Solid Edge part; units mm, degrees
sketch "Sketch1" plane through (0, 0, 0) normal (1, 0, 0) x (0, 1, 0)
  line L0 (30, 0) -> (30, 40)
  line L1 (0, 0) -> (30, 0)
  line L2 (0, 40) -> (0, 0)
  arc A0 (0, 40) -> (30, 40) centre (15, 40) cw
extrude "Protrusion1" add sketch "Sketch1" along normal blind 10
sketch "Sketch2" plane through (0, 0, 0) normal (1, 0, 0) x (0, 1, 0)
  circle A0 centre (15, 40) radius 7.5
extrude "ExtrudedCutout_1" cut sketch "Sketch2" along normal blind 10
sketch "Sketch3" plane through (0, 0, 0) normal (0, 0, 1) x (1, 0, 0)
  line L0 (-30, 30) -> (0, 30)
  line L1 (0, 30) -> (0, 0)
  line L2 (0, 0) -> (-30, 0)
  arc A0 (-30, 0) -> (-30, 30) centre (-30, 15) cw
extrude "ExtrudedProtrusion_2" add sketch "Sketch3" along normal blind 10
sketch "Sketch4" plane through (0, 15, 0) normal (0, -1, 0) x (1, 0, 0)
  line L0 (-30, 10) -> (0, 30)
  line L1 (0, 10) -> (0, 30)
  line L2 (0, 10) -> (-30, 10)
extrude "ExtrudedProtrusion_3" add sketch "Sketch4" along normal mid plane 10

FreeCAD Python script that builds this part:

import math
import FreeCAD as App
import Part
import Sketcher
from FreeCAD import Vector


def add_polygon(sketch, points):
    """Adds a closed chain of lines whose ends are joined by coincident constraints."""
    first, n = sketch.GeometryCount, len(points)
    for a, b in zip(points, points[1:] + points[:1]):
        sketch.addGeometry(Part.LineSegment(App.Vector(*a, 0), App.Vector(*b, 0)), False)
    for i in range(n):
        sketch.addConstraint(Sketcher.Constraint("Coincident", first + i, 2, first + (i + 1) % n, 1))

doc = App.newDocument("Part")
body = doc.addObject("PartDesign::Body", "Body")

sketch1 = body.newObject("Sketcher::SketchObject", "Sketch")
sketch1.AttachmentSupport = (doc.getObject("YZ_Plane"), [""])
sketch1.MapMode = "FlatFace"
sketch1.addGeometry(Part.LineSegment(Vector(0, 0, 0), Vector(30, 0, 0)), False)
sketch1.addGeometry(Part.LineSegment(Vector(30, 0, 0), Vector(30, 40, 0)), False)
sketch1.addGeometry(Part.ArcOfCircle(Part.Circle(Vector(15, 40, 0), Vector(0, 0, 1), 15), math.radians(0), math.radians(180)), False)
sketch1.addGeometry(Part.LineSegment(Vector(0, 40, 0), Vector(0, 0, 0)), False)
sketch1.addConstraint(Sketcher.Constraint("Coincident", 0, 2, 1, 1))
sketch1.addConstraint(Sketcher.Constraint("Tangent", 1, 2, 2, 1))
sketch1.addConstraint(Sketcher.Constraint("Tangent", 2, 2, 3, 1))
sketch1.addConstraint(Sketcher.Constraint("Coincident", 3, 2, 0, 1))
sketch1.addConstraint(Sketcher.Constraint("Horizontal", 0))
sketch1.addConstraint(Sketcher.Constraint("Vertical", 1))
sketch1.addConstraint(Sketcher.Constraint("Vertical", 3))
sketch1.addConstraint(Sketcher.Constraint("Coincident", 3, 2, -1, 1))
sketch1.addConstraint(Sketcher.Constraint("Radius", 2, 15.0))
sketch1.addConstraint(Sketcher.Constraint("DistanceY", 1, 1, 1, 2, 40.0))
pad1 = body.newObject("PartDesign::Pad", "Pad")
pad1.Profile = sketch1
pad1.Length = 10

sketch2 = body.newObject("Sketcher::SketchObject", "Sketch001")
sketch2.AttachmentSupport = (doc.getObject("YZ_Plane"), [""])
sketch2.MapMode = "FlatFace"
sketch2.addGeometry(Part.Circle(Vector(15, 40, 0), Vector(0, 0, 1), 7.5), False)
sketch2.addConstraint(Sketcher.Constraint("Diameter", 0, 15.0))
sketch2.addConstraint(Sketcher.Constraint("DistanceX", -1, 1, 0, 3, 15.0))
sketch2.addConstraint(Sketcher.Constraint("DistanceY", -1, 1, 0, 3, 40.0))
pocket1 = body.newObject("PartDesign::Pocket", "Pocket")
pocket1.Profile = sketch2
pocket1.Length = 10
pocket1.Reversed = True

sketch3 = body.newObject("Sketcher::SketchObject", "Sketch002")
sketch3.AttachmentSupport = (doc.getObject("XY_Plane"), [""])
sketch3.MapMode = "FlatFace"
sketch3.addGeometry(Part.LineSegment(Vector(0, 30, 0), Vector(-30, 30, 0)), False)
sketch3.addGeometry(Part.ArcOfCircle(Part.Circle(Vector(-30, 15, 0), Vector(0, 0, 1), 15), math.radians(90), math.radians(270)), False)
sketch3.addGeometry(Part.LineSegment(Vector(-30, 0, 0), Vector(0, 0, 0)), False)
sketch3.addGeometry(Part.LineSegment(Vector(0, 0, 0), Vector(0, 30, 0)), False)
sketch3.addConstraint(Sketcher.Constraint("Tangent", 0, 2, 1, 1))
sketch3.addConstraint(Sketcher.Constraint("Tangent", 1, 2, 2, 1))
sketch3.addConstraint(Sketcher.Constraint("Coincident", 2, 2, 3, 1))
sketch3.addConstraint(Sketcher.Constraint("Coincident", 3, 2, 0, 1))
sketch3.addConstraint(Sketcher.Constraint("Horizontal", 0))
sketch3.addConstraint(Sketcher.Constraint("Horizontal", 2))
sketch3.addConstraint(Sketcher.Constraint("Vertical", 3))
sketch3.addConstraint(Sketcher.Constraint("Coincident", 2, 2, -1, 1))
sketch3.addConstraint(Sketcher.Constraint("Equal", 2, 3))
sketch3.addConstraint(Sketcher.Constraint("Radius", 1, 15.0))
pad2 = body.newObject("PartDesign::Pad", "Pad001")
pad2.Profile = sketch3
pad2.Length = 10

sketch4 = body.newObject("Sketcher::SketchObject", "Sketch003")
sketch4.AttachmentSupport = (doc.getObject("XZ_Plane"), [""])
sketch4.MapMode = "FlatFace"
sketch4.AttachmentOffset = App.Placement(Vector(0, 0, -15), App.Rotation())
add_polygon(sketch4, [(0, 30), (-30, 10), (0, 10)])
sketch4.addConstraint(Sketcher.Constraint("Horizontal", 1))
sketch4.addConstraint(Sketcher.Constraint("Vertical", 2))
sketch4.addConstraint(Sketcher.Constraint("PointOnObject", 1, 2, -2))
sketch4.addConstraint(Sketcher.Constraint("DistanceX", 1, 1, 1, 2, 30.0))
sketch4.addConstraint(Sketcher.Constraint("DistanceY", 2, 1, 2, 2, 20.0))
sketch4.addConstraint(Sketcher.Constraint("DistanceY", -1, 1, 0, 2, 10.0))
pad3 = body.newObject("PartDesign::Pad", "Pad002")
pad3.Profile = sketch4
pad3.Length = 10
pad3.Midplane = True

doc.recompute()
